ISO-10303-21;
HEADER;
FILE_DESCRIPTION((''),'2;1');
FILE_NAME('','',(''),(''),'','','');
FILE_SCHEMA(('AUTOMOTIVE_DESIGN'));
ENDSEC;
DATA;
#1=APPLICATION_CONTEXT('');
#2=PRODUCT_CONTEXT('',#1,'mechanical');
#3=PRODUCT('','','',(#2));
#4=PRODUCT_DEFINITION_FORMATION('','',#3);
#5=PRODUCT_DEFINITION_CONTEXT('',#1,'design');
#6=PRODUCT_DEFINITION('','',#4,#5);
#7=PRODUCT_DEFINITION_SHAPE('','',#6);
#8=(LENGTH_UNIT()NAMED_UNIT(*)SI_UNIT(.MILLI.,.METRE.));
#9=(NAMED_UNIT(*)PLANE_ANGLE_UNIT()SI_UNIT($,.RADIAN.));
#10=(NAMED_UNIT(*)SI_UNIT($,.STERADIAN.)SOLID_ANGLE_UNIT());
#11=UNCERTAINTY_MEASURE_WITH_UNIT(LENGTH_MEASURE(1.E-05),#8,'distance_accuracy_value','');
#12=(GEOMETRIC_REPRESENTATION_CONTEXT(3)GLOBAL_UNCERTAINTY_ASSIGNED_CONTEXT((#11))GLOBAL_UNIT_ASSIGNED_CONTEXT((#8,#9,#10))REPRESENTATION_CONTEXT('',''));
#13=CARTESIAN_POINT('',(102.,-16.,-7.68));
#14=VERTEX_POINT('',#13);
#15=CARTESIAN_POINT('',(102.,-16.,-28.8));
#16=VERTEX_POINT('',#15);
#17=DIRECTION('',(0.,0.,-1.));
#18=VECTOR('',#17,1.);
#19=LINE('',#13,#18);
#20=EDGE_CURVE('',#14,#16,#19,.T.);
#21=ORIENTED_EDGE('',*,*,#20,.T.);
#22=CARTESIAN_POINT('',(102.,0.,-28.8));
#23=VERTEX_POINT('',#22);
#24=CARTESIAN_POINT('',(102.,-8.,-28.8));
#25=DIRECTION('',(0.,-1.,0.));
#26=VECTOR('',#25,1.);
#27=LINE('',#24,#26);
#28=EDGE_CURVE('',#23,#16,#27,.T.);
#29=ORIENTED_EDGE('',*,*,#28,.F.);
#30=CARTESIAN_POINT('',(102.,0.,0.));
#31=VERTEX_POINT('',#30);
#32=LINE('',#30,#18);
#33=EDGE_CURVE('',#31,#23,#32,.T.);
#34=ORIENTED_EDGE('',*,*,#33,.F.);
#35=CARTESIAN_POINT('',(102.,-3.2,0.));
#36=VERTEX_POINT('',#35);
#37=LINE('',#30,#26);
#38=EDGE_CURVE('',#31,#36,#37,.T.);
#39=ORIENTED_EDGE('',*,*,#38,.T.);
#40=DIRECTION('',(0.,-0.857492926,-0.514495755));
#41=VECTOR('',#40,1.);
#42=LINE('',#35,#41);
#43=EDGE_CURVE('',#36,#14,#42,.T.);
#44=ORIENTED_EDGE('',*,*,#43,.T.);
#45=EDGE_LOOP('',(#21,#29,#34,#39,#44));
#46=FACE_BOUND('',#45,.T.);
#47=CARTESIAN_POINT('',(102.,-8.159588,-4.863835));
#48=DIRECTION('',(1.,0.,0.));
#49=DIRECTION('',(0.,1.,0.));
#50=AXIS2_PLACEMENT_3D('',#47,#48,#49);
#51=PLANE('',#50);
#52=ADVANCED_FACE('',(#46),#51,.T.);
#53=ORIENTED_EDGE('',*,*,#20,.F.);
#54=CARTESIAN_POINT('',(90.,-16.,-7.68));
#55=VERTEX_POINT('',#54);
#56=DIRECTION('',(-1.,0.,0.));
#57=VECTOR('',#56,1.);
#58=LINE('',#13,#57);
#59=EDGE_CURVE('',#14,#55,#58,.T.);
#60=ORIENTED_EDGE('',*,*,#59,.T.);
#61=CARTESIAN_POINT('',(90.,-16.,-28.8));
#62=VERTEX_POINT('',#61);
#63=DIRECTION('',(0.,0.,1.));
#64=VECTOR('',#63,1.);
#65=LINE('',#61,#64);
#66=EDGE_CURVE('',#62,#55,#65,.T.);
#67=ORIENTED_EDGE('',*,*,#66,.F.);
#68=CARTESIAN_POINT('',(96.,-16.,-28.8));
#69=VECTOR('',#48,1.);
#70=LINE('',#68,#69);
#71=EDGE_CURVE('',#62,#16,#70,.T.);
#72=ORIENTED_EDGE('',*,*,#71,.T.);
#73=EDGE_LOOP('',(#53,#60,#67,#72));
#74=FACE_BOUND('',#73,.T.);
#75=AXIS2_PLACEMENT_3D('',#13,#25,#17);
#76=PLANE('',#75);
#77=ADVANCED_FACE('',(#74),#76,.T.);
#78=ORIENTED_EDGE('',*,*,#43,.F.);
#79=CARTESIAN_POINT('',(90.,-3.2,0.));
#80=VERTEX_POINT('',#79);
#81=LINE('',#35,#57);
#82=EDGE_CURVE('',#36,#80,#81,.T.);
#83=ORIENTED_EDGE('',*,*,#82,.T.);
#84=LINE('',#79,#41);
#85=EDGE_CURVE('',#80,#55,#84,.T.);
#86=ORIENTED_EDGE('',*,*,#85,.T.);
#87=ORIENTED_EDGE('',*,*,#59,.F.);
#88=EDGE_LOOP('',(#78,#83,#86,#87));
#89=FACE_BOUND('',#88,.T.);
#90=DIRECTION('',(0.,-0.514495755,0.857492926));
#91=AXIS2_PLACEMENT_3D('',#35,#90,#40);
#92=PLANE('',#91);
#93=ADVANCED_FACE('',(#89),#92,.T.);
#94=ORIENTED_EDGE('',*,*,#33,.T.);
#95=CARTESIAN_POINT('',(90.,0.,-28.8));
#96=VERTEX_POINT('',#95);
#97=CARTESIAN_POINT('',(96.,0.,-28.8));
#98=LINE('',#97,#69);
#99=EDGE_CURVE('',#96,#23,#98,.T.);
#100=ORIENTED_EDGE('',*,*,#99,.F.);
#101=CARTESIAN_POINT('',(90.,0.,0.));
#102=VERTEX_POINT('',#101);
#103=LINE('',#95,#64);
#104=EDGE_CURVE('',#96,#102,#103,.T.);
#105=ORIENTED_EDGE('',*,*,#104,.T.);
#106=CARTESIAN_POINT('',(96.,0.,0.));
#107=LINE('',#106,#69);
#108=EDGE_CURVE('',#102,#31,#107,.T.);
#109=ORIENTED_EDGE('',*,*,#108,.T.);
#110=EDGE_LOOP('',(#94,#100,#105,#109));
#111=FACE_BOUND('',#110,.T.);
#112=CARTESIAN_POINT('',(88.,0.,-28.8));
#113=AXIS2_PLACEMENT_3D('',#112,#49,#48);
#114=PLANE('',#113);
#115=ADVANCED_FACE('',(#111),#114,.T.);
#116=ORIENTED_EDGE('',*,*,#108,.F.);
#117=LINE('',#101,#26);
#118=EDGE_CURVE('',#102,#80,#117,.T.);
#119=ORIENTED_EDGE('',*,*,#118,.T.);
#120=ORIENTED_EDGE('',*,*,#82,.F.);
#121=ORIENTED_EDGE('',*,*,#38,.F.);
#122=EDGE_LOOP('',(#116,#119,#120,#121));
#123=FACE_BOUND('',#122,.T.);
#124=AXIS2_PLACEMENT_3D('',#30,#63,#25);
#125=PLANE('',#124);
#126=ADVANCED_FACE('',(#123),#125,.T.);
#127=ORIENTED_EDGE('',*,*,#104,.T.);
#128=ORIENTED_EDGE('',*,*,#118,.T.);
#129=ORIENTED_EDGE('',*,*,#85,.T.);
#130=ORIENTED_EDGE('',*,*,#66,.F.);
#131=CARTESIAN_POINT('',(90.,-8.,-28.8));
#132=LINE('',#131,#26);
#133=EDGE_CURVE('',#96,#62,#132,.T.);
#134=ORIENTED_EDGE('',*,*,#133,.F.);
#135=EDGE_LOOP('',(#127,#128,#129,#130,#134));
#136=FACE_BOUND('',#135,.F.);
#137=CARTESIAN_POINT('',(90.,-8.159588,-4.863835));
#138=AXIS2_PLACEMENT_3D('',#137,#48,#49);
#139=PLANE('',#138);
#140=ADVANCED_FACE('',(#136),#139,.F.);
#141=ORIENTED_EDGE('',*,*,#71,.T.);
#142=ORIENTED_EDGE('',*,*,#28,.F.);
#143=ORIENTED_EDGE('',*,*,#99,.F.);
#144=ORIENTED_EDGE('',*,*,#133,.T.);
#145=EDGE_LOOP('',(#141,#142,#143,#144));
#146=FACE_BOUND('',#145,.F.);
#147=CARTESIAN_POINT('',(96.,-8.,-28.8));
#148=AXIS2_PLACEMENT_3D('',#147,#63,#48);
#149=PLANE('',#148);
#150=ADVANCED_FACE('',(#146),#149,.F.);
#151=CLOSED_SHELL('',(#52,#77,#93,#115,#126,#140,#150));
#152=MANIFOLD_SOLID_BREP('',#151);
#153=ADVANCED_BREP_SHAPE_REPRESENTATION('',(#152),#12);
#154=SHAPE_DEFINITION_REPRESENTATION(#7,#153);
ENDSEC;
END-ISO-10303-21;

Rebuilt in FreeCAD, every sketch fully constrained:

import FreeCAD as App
import Part
import Sketcher

V = App.Vector


def add_polygon(sketch, points):
    """Adds a closed chain of lines whose ends are joined by coincident constraints."""
    first, n = sketch.GeometryCount, len(points)
    for a, b in zip(points, points[1:] + points[:1]):
        sketch.addGeometry(Part.LineSegment(App.Vector(*a, 0), App.Vector(*b, 0)), False)
    for i in range(n):
        sketch.addConstraint(Sketcher.Constraint("Coincident", first + i, 2, first + (i + 1) % n, 1))

doc = App.newDocument("Part")
body = doc.addObject("PartDesign::Body", "Body")

sketch1 = body.newObject("Sketcher::SketchObject", "Sketch")
sketch1.AttachmentSupport = (doc.getObject("XY_Plane"), [""])
sketch1.MapMode = "FlatFace"
sketch1.AttachmentOffset = App.Placement(V(0, 0, -28.8), App.Rotation())
add_polygon(sketch1, [(88, 0), (88, -16), (104, -16), (104, 0)])
sketch1.addConstraint([
    Sketcher.Constraint("Vertical", 0),
    Sketcher.Constraint("Horizontal", 1),
    Sketcher.Constraint("Vertical", 2),
    Sketcher.Constraint("Horizontal", 3),
    Sketcher.Constraint("PointOnObject", 2, 2, -1),
    Sketcher.Constraint("Equal", 3, 0),
    Sketcher.Constraint("DistanceX", 1, 1, 1, 2, 16.0),
    Sketcher.Constraint("DistanceX", -1, 1, 0, 2, 88.0),
])
pad1 = body.newObject("PartDesign::Pad", "Pad")
pad1.Profile = sketch1
pad1.Length = 28.8

sketch2 = body.newObject("Sketcher::SketchObject", "Sketch001")
sketch2.AttachmentSupport = (doc.getObject("YZ_Plane"), [""])
sketch2.MapMode = "FlatFace"
sketch2.AttachmentOffset = App.Placement(V(0, 0, 104), App.Rotation())
add_polygon(sketch2, [(-16, 0), (-16, -10), (0, 0)])
sketch2.addConstraint([
    Sketcher.Constraint("Vertical", 0),
    Sketcher.Constraint("Horizontal", 2),
    Sketcher.Constraint("Coincident", 1, 2, -1, 1),
    Sketcher.Constraint("DistanceX", 2, 2, 2, 1, 16.0),
    Sketcher.Constraint("DistanceY", 0, 2, 0, 1, 9.6),
])
pocket1 = body.newObject("PartDesign::Pocket", "Pocket")
pocket1.Profile = sketch2
pocket1.Length = 16

sketch3 = body.newObject("Sketcher::SketchObject", "Sketch002")
sketch3.AttachmentSupport = (doc.getObject("XY_Plane"), [""])
sketch3.MapMode = "FlatFace"
sketch3.AttachmentOffset = App.Placement(V(0, 0, -28.8), App.Rotation())
add_polygon(sketch3, [(102, -16), (102, 0), (104, 0), (104, -16)])
add_polygon(sketch3, [(88, -16), (88, 0), (90, 0), (90, -16)])
sketch3.addConstraint([
    Sketcher.Constraint("Vertical", 0),
    Sketcher.Constraint("Horizontal", 1),
    Sketcher.Constraint("Vertical", 2),
    Sketcher.Constraint("Horizontal", 3),
    Sketcher.Constraint("Vertical", 4),
    Sketcher.Constraint("Horizontal", 5),
    Sketcher.Constraint("Vertical", 6),
    Sketcher.Constraint("Horizontal", 7),
    Sketcher.Constraint("PointOnObject", 0, 2, -1),
    Sketcher.Constraint("PointOnObject", 4, 2, -1),
    Sketcher.Constraint("Horizontal", 3, 2, 6, 2),
    Sketcher.Constraint("Equal", 3, 5),
    Sketcher.Constraint("DistanceX", 1, 1, 1, 2, 2.0),
    Sketcher.Constraint("DistanceY", 0, 1, 0, 2, 16.0),
    Sketcher.Constraint("DistanceX", -1, 1, 0, 2, 102.0),
    Sketcher.Constraint("DistanceX", -1, 1, 4, 2, 88.0),
])
pocket2 = body.newObject("PartDesign::Pocket", "Pocket001")
pocket2.Profile = sketch3
pocket2.Length = 30
pocket2.Reversed = True

sketch4 = body.newObject("Sketcher::SketchObject", "Sketch003")
sketch4.AttachmentSupport = (doc.getObject("YZ_Plane"), [""])
sketch4.MapMode = "FlatFace"
sketch4.AttachmentOffset = App.Placement(V(0, 0, 102), App.Rotation())
add_polygon(sketch4, [(0, 0), (-3.2, 0), (-16, -7.7), (-16, -10.9), (-3.2, -3.2), (0, -3.2)])
sketch4.addConstraint([
    Sketcher.Constraint("Horizontal", 0),
    Sketcher.Constraint("Vertical", 2),
    Sketcher.Constraint("Horizontal", 4),
    Sketcher.Constraint("Vertical", 5),
    Sketcher.Constraint("Coincident", 5, 2, -1, 1),
    Sketcher.Constraint("Parallel", 1, 3),
    Sketcher.Constraint("Vertical", 0, 2, 3, 2),
    Sketcher.Constraint("Equal", 4, 2),
    Sketcher.Constraint("DistanceX", 0, 2, 0, 1, 3.2),
    Sketcher.Constraint("DistanceX", 1, 2, -1, 1, 16.0),
    Sketcher.Constraint("DistanceY", 1, 2, -1, 1, 7.68),
])
pad2 = body.newObject("PartDesign::Pad", "Pad001")
pad2.Profile = sketch4
pad2.Length = 12
pad2.Reversed = True

doc.recompute()
